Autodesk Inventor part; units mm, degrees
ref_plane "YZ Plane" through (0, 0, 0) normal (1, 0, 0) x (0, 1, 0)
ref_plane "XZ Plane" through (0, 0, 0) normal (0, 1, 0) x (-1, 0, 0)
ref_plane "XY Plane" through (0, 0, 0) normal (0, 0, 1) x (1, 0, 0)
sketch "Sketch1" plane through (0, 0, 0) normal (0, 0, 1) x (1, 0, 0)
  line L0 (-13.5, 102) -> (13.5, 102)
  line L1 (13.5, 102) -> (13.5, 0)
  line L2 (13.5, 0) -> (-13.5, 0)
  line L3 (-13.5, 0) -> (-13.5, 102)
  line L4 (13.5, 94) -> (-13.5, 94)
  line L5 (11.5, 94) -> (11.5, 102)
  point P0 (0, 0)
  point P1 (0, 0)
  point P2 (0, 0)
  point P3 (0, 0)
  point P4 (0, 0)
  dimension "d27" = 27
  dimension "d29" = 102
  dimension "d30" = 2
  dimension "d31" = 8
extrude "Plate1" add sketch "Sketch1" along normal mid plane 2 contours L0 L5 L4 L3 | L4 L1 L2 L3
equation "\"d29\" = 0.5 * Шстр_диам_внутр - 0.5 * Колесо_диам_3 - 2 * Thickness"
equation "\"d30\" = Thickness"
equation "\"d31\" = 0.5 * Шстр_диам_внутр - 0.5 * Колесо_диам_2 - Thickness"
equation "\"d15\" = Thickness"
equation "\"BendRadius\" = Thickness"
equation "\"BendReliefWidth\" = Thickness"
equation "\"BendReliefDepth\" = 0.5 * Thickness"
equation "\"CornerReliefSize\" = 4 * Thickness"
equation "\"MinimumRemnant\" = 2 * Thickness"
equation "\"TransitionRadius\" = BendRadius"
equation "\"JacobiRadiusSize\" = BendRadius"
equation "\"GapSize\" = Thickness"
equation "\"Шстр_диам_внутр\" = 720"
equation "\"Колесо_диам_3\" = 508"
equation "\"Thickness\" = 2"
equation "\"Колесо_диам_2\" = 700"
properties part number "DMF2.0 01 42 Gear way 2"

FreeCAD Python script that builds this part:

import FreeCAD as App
import Part
import Sketcher

V = App.Vector


def add_polygon(sketch, points):
    """Adds a closed chain of lines whose ends are joined by coincident constraints."""
    first, n = sketch.GeometryCount, len(points)
    for a, b in zip(points, points[1:] + points[:1]):
        sketch.addGeometry(Part.LineSegment(App.Vector(*a, 0), App.Vector(*b, 0)), False)
    for i in range(n):
        sketch.addConstraint(Sketcher.Constraint("Coincident", first + i, 2, first + (i + 1) % n, 1))

doc = App.newDocument("Part")
body = doc.addObject("PartDesign::Body", "Body")

# Sketch on XY plane
sketch1 = body.newObject("Sketcher::SketchObject", "Sketch")
sketch1.AttachmentSupport = (doc.getObject("XY_Plane"), [""])
sketch1.MapMode = "FlatFace"
add_polygon(sketch1, [(11.5, 102), (-13.5, 102), (-13.5, 0), (13.5, 0), (13.5, 94), (11.5, 94)])  # lines 0-5
sketch1.addConstraint([
    Sketcher.Constraint("Horizontal", 0),
    Sketcher.Constraint("Vertical", 1),
    Sketcher.Constraint("Horizontal", 2),
    Sketcher.Constraint("Vertical", 3),
    Sketcher.Constraint("Horizontal", 4),
    Sketcher.Constraint("Vertical", 5),
    Sketcher.Constraint("Symmetric", 1, 2, 2, 2, -1, 1),
    Sketcher.Constraint("DistanceX", 2, 1, 2, 2, 27.0),
    Sketcher.Constraint("DistanceX", 4, 2, 4, 1, 2.0),
    Sketcher.Constraint("DistanceY", 1, 2, 1, 1, 102.0),
    Sketcher.Constraint("DistanceY", 5, 1, 5, 2, 8.0),
])
pad1 = body.newObject("PartDesign::Pad", "Pad")
pad1.Profile = sketch1
pad1.Length = 2
pad1.Midplane = True

doc.recompute()
